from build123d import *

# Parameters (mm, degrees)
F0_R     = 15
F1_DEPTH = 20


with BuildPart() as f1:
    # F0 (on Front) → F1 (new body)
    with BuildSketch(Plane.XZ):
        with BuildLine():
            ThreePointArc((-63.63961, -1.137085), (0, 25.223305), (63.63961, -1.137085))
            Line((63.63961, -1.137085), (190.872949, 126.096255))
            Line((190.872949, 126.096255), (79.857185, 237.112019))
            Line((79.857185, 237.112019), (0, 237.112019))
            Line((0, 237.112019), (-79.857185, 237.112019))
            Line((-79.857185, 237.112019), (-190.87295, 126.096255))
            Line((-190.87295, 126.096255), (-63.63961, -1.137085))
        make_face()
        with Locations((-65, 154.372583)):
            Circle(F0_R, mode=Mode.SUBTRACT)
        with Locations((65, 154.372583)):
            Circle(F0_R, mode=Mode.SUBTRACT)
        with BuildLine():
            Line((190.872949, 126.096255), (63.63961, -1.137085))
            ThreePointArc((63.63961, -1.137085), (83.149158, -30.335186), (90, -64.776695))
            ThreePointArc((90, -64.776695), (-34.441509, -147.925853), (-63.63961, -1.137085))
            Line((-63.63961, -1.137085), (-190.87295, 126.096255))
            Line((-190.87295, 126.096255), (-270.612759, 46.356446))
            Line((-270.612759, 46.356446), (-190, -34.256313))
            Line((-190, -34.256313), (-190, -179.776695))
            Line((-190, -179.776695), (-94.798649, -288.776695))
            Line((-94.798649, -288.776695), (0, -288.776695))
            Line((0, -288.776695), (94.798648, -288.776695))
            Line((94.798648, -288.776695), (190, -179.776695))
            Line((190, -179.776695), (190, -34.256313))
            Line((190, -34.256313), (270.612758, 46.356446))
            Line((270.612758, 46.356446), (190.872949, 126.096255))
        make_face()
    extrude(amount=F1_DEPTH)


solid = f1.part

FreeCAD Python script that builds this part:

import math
import FreeCAD as App
import Part
import Sketcher

V = App.Vector
Q = App.Units.Quantity

doc = App.newDocument("Part")
body = doc.addObject("PartDesign::Body", "Body")

sketch1 = body.newObject("Sketcher::SketchObject", "Sketch")
sketch1.AttachmentSupport = (doc.getObject("XZ_Plane"), [""])
sketch1.MapMode = "FlatFace"
sketch1.addGeometry([
    Part.LineSegment(V(-80, 237, 0), V(-191, 126, 0)),
    Part.LineSegment(V(-191, 126, 0), V(-271, 46, 0)),
    Part.LineSegment(V(-271, 46, 0), V(-190, -34, 0)),
    Part.LineSegment(V(-190, -34, 0), V(-190, -180, 0)),
    Part.LineSegment(V(-190, -180, 0), V(-95, -289, 0)),
    Part.LineSegment(V(-95, -289, 0), V(95, -289, 0)),
    Part.LineSegment(V(95, -289, 0), V(190, -180, 0)),
    Part.LineSegment(V(190, -180, 0), V(190, -34, 0)),
    Part.LineSegment(V(190, -34, 0), V(271, 46, 0)),
    Part.LineSegment(V(271, 46, 0), V(80, 237, 0)),
    Part.LineSegment(V(80, 237, 0), V(-80, 237, 0)),
    Part.ArcOfCircle(Part.Circle(V(0, -65, 0), V(0, 0, 1), 90), math.radians(45), math.radians(135)),
    Part.ArcOfCircle(Part.Circle(V(0, -65, 0), V(0, 0, 1), 90), math.radians(0), math.radians(45)),
    Part.ArcOfCircle(Part.Circle(V(0, -65, 0), V(0, 0, 1), 90), math.radians(135), math.radians(360)),
    Part.Circle(V(-65, 154, 0), V(0, 0, 1), 15),
    Part.Circle(V(65, 154, 0), V(0, 0, 1), 15),
], False)
sketch1.addConstraint([
    Sketcher.Constraint("Coincident", 0, 2, 1, 1),
    Sketcher.Constraint("Coincident", 1, 2, 2, 1),
    Sketcher.Constraint("Coincident", 2, 2, 3, 1),
    Sketcher.Constraint("Coincident", 3, 2, 4, 1),
    Sketcher.Constraint("Coincident", 4, 2, 5, 1),
    Sketcher.Constraint("Coincident", 5, 2, 6, 1),
    Sketcher.Constraint("Coincident", 6, 2, 7, 1),
    Sketcher.Constraint("Coincident", 7, 2, 8, 1),
    Sketcher.Constraint("Coincident", 8, 2, 9, 1),
    Sketcher.Constraint("Coincident", 9, 2, 10, 1),
    Sketcher.Constraint("Coincident", 10, 2, 0, 1),
    Sketcher.Constraint("Tangent", 11, 1, 12, 2),
    Sketcher.Constraint("Tangent", 12, 1, 13, 2),
    Sketcher.Constraint("Tangent", 13, 1, 11, 2),
    Sketcher.Constraint("Vertical", 3),
    Sketcher.Constraint("Horizontal", 5),
    Sketcher.Constraint("Vertical", 7),
    Sketcher.Constraint("Horizontal", 10),
    Sketcher.Constraint("Equal", 14, 15),
    Sketcher.Constraint("Symmetric", 14, 3, 15, 3, -2),
    Sketcher.Constraint("Symmetric", 3, 2, 6, 2, -2),
    Sketcher.Constraint("Symmetric", 1, 2, 8, 2, -2),
    Sketcher.Constraint("Symmetric", 11, 1, 13, 1, -2),
    Sketcher.Constraint("Parallel", 0, 1),
    Sketcher.Constraint("Perpendicular", 1, 2),
    Sketcher.Constraint("Perpendicular", 2, 8),
    Sketcher.Constraint("Perpendicular", 8, 9),
    Sketcher.Constraint("Horizontal", 2, 2, 7, 2),
    Sketcher.Constraint("Horizontal", 13, 3, 12, 1),
    Sketcher.Constraint("Equal", 4, 6),
    Sketcher.Constraint("Diameter", 14, Q("30 mm")),
    Sketcher.Constraint("Radius", 11, Q("89.999999 mm")),
    Sketcher.Constraint("Distance", 0, Q("157 mm")),
    Sketcher.Constraint("DistanceX", 14, 3, -1, 1, Q("65 mm")),
    Sketcher.Constraint("DistanceX", 2, 2, -1, 1, Q("190 mm")),
    Sketcher.Constraint("DistanceY", 3, 2, 13, 3, Q("115 mm")),
    Sketcher.Constraint("DistanceY", 4, 2, 3, 2, Q("109 mm")),
    Sketcher.Constraint("DistanceX", 10, 2, 10, 1, Q("159.71437 mm")),
    Sketcher.Constraint("DistanceY", 3, 2, 3, 1, Q("145.520382 mm")),
    Sketcher.Constraint("Distance", 1, Q("112.769119 mm")),
    Sketcher.Constraint("DistanceX", 5, 1, 5, 2, Q("189.597297 mm")),
    Sketcher.Constraint("DistanceY", -1, 1, 9, 2, Q("237.112019 mm")),
    Sketcher.Constraint("DistanceX", -1, 1, 11, 1, Q("63.63961 mm")),
    Sketcher.Constraint("DistanceY", 13, 3, 14, 3, Q("219.149278 mm")),
])
pad1 = body.newObject("PartDesign::Pad", "Pad")
pad1.Profile = sketch1
pad1.Length = 20

doc.recompute()
